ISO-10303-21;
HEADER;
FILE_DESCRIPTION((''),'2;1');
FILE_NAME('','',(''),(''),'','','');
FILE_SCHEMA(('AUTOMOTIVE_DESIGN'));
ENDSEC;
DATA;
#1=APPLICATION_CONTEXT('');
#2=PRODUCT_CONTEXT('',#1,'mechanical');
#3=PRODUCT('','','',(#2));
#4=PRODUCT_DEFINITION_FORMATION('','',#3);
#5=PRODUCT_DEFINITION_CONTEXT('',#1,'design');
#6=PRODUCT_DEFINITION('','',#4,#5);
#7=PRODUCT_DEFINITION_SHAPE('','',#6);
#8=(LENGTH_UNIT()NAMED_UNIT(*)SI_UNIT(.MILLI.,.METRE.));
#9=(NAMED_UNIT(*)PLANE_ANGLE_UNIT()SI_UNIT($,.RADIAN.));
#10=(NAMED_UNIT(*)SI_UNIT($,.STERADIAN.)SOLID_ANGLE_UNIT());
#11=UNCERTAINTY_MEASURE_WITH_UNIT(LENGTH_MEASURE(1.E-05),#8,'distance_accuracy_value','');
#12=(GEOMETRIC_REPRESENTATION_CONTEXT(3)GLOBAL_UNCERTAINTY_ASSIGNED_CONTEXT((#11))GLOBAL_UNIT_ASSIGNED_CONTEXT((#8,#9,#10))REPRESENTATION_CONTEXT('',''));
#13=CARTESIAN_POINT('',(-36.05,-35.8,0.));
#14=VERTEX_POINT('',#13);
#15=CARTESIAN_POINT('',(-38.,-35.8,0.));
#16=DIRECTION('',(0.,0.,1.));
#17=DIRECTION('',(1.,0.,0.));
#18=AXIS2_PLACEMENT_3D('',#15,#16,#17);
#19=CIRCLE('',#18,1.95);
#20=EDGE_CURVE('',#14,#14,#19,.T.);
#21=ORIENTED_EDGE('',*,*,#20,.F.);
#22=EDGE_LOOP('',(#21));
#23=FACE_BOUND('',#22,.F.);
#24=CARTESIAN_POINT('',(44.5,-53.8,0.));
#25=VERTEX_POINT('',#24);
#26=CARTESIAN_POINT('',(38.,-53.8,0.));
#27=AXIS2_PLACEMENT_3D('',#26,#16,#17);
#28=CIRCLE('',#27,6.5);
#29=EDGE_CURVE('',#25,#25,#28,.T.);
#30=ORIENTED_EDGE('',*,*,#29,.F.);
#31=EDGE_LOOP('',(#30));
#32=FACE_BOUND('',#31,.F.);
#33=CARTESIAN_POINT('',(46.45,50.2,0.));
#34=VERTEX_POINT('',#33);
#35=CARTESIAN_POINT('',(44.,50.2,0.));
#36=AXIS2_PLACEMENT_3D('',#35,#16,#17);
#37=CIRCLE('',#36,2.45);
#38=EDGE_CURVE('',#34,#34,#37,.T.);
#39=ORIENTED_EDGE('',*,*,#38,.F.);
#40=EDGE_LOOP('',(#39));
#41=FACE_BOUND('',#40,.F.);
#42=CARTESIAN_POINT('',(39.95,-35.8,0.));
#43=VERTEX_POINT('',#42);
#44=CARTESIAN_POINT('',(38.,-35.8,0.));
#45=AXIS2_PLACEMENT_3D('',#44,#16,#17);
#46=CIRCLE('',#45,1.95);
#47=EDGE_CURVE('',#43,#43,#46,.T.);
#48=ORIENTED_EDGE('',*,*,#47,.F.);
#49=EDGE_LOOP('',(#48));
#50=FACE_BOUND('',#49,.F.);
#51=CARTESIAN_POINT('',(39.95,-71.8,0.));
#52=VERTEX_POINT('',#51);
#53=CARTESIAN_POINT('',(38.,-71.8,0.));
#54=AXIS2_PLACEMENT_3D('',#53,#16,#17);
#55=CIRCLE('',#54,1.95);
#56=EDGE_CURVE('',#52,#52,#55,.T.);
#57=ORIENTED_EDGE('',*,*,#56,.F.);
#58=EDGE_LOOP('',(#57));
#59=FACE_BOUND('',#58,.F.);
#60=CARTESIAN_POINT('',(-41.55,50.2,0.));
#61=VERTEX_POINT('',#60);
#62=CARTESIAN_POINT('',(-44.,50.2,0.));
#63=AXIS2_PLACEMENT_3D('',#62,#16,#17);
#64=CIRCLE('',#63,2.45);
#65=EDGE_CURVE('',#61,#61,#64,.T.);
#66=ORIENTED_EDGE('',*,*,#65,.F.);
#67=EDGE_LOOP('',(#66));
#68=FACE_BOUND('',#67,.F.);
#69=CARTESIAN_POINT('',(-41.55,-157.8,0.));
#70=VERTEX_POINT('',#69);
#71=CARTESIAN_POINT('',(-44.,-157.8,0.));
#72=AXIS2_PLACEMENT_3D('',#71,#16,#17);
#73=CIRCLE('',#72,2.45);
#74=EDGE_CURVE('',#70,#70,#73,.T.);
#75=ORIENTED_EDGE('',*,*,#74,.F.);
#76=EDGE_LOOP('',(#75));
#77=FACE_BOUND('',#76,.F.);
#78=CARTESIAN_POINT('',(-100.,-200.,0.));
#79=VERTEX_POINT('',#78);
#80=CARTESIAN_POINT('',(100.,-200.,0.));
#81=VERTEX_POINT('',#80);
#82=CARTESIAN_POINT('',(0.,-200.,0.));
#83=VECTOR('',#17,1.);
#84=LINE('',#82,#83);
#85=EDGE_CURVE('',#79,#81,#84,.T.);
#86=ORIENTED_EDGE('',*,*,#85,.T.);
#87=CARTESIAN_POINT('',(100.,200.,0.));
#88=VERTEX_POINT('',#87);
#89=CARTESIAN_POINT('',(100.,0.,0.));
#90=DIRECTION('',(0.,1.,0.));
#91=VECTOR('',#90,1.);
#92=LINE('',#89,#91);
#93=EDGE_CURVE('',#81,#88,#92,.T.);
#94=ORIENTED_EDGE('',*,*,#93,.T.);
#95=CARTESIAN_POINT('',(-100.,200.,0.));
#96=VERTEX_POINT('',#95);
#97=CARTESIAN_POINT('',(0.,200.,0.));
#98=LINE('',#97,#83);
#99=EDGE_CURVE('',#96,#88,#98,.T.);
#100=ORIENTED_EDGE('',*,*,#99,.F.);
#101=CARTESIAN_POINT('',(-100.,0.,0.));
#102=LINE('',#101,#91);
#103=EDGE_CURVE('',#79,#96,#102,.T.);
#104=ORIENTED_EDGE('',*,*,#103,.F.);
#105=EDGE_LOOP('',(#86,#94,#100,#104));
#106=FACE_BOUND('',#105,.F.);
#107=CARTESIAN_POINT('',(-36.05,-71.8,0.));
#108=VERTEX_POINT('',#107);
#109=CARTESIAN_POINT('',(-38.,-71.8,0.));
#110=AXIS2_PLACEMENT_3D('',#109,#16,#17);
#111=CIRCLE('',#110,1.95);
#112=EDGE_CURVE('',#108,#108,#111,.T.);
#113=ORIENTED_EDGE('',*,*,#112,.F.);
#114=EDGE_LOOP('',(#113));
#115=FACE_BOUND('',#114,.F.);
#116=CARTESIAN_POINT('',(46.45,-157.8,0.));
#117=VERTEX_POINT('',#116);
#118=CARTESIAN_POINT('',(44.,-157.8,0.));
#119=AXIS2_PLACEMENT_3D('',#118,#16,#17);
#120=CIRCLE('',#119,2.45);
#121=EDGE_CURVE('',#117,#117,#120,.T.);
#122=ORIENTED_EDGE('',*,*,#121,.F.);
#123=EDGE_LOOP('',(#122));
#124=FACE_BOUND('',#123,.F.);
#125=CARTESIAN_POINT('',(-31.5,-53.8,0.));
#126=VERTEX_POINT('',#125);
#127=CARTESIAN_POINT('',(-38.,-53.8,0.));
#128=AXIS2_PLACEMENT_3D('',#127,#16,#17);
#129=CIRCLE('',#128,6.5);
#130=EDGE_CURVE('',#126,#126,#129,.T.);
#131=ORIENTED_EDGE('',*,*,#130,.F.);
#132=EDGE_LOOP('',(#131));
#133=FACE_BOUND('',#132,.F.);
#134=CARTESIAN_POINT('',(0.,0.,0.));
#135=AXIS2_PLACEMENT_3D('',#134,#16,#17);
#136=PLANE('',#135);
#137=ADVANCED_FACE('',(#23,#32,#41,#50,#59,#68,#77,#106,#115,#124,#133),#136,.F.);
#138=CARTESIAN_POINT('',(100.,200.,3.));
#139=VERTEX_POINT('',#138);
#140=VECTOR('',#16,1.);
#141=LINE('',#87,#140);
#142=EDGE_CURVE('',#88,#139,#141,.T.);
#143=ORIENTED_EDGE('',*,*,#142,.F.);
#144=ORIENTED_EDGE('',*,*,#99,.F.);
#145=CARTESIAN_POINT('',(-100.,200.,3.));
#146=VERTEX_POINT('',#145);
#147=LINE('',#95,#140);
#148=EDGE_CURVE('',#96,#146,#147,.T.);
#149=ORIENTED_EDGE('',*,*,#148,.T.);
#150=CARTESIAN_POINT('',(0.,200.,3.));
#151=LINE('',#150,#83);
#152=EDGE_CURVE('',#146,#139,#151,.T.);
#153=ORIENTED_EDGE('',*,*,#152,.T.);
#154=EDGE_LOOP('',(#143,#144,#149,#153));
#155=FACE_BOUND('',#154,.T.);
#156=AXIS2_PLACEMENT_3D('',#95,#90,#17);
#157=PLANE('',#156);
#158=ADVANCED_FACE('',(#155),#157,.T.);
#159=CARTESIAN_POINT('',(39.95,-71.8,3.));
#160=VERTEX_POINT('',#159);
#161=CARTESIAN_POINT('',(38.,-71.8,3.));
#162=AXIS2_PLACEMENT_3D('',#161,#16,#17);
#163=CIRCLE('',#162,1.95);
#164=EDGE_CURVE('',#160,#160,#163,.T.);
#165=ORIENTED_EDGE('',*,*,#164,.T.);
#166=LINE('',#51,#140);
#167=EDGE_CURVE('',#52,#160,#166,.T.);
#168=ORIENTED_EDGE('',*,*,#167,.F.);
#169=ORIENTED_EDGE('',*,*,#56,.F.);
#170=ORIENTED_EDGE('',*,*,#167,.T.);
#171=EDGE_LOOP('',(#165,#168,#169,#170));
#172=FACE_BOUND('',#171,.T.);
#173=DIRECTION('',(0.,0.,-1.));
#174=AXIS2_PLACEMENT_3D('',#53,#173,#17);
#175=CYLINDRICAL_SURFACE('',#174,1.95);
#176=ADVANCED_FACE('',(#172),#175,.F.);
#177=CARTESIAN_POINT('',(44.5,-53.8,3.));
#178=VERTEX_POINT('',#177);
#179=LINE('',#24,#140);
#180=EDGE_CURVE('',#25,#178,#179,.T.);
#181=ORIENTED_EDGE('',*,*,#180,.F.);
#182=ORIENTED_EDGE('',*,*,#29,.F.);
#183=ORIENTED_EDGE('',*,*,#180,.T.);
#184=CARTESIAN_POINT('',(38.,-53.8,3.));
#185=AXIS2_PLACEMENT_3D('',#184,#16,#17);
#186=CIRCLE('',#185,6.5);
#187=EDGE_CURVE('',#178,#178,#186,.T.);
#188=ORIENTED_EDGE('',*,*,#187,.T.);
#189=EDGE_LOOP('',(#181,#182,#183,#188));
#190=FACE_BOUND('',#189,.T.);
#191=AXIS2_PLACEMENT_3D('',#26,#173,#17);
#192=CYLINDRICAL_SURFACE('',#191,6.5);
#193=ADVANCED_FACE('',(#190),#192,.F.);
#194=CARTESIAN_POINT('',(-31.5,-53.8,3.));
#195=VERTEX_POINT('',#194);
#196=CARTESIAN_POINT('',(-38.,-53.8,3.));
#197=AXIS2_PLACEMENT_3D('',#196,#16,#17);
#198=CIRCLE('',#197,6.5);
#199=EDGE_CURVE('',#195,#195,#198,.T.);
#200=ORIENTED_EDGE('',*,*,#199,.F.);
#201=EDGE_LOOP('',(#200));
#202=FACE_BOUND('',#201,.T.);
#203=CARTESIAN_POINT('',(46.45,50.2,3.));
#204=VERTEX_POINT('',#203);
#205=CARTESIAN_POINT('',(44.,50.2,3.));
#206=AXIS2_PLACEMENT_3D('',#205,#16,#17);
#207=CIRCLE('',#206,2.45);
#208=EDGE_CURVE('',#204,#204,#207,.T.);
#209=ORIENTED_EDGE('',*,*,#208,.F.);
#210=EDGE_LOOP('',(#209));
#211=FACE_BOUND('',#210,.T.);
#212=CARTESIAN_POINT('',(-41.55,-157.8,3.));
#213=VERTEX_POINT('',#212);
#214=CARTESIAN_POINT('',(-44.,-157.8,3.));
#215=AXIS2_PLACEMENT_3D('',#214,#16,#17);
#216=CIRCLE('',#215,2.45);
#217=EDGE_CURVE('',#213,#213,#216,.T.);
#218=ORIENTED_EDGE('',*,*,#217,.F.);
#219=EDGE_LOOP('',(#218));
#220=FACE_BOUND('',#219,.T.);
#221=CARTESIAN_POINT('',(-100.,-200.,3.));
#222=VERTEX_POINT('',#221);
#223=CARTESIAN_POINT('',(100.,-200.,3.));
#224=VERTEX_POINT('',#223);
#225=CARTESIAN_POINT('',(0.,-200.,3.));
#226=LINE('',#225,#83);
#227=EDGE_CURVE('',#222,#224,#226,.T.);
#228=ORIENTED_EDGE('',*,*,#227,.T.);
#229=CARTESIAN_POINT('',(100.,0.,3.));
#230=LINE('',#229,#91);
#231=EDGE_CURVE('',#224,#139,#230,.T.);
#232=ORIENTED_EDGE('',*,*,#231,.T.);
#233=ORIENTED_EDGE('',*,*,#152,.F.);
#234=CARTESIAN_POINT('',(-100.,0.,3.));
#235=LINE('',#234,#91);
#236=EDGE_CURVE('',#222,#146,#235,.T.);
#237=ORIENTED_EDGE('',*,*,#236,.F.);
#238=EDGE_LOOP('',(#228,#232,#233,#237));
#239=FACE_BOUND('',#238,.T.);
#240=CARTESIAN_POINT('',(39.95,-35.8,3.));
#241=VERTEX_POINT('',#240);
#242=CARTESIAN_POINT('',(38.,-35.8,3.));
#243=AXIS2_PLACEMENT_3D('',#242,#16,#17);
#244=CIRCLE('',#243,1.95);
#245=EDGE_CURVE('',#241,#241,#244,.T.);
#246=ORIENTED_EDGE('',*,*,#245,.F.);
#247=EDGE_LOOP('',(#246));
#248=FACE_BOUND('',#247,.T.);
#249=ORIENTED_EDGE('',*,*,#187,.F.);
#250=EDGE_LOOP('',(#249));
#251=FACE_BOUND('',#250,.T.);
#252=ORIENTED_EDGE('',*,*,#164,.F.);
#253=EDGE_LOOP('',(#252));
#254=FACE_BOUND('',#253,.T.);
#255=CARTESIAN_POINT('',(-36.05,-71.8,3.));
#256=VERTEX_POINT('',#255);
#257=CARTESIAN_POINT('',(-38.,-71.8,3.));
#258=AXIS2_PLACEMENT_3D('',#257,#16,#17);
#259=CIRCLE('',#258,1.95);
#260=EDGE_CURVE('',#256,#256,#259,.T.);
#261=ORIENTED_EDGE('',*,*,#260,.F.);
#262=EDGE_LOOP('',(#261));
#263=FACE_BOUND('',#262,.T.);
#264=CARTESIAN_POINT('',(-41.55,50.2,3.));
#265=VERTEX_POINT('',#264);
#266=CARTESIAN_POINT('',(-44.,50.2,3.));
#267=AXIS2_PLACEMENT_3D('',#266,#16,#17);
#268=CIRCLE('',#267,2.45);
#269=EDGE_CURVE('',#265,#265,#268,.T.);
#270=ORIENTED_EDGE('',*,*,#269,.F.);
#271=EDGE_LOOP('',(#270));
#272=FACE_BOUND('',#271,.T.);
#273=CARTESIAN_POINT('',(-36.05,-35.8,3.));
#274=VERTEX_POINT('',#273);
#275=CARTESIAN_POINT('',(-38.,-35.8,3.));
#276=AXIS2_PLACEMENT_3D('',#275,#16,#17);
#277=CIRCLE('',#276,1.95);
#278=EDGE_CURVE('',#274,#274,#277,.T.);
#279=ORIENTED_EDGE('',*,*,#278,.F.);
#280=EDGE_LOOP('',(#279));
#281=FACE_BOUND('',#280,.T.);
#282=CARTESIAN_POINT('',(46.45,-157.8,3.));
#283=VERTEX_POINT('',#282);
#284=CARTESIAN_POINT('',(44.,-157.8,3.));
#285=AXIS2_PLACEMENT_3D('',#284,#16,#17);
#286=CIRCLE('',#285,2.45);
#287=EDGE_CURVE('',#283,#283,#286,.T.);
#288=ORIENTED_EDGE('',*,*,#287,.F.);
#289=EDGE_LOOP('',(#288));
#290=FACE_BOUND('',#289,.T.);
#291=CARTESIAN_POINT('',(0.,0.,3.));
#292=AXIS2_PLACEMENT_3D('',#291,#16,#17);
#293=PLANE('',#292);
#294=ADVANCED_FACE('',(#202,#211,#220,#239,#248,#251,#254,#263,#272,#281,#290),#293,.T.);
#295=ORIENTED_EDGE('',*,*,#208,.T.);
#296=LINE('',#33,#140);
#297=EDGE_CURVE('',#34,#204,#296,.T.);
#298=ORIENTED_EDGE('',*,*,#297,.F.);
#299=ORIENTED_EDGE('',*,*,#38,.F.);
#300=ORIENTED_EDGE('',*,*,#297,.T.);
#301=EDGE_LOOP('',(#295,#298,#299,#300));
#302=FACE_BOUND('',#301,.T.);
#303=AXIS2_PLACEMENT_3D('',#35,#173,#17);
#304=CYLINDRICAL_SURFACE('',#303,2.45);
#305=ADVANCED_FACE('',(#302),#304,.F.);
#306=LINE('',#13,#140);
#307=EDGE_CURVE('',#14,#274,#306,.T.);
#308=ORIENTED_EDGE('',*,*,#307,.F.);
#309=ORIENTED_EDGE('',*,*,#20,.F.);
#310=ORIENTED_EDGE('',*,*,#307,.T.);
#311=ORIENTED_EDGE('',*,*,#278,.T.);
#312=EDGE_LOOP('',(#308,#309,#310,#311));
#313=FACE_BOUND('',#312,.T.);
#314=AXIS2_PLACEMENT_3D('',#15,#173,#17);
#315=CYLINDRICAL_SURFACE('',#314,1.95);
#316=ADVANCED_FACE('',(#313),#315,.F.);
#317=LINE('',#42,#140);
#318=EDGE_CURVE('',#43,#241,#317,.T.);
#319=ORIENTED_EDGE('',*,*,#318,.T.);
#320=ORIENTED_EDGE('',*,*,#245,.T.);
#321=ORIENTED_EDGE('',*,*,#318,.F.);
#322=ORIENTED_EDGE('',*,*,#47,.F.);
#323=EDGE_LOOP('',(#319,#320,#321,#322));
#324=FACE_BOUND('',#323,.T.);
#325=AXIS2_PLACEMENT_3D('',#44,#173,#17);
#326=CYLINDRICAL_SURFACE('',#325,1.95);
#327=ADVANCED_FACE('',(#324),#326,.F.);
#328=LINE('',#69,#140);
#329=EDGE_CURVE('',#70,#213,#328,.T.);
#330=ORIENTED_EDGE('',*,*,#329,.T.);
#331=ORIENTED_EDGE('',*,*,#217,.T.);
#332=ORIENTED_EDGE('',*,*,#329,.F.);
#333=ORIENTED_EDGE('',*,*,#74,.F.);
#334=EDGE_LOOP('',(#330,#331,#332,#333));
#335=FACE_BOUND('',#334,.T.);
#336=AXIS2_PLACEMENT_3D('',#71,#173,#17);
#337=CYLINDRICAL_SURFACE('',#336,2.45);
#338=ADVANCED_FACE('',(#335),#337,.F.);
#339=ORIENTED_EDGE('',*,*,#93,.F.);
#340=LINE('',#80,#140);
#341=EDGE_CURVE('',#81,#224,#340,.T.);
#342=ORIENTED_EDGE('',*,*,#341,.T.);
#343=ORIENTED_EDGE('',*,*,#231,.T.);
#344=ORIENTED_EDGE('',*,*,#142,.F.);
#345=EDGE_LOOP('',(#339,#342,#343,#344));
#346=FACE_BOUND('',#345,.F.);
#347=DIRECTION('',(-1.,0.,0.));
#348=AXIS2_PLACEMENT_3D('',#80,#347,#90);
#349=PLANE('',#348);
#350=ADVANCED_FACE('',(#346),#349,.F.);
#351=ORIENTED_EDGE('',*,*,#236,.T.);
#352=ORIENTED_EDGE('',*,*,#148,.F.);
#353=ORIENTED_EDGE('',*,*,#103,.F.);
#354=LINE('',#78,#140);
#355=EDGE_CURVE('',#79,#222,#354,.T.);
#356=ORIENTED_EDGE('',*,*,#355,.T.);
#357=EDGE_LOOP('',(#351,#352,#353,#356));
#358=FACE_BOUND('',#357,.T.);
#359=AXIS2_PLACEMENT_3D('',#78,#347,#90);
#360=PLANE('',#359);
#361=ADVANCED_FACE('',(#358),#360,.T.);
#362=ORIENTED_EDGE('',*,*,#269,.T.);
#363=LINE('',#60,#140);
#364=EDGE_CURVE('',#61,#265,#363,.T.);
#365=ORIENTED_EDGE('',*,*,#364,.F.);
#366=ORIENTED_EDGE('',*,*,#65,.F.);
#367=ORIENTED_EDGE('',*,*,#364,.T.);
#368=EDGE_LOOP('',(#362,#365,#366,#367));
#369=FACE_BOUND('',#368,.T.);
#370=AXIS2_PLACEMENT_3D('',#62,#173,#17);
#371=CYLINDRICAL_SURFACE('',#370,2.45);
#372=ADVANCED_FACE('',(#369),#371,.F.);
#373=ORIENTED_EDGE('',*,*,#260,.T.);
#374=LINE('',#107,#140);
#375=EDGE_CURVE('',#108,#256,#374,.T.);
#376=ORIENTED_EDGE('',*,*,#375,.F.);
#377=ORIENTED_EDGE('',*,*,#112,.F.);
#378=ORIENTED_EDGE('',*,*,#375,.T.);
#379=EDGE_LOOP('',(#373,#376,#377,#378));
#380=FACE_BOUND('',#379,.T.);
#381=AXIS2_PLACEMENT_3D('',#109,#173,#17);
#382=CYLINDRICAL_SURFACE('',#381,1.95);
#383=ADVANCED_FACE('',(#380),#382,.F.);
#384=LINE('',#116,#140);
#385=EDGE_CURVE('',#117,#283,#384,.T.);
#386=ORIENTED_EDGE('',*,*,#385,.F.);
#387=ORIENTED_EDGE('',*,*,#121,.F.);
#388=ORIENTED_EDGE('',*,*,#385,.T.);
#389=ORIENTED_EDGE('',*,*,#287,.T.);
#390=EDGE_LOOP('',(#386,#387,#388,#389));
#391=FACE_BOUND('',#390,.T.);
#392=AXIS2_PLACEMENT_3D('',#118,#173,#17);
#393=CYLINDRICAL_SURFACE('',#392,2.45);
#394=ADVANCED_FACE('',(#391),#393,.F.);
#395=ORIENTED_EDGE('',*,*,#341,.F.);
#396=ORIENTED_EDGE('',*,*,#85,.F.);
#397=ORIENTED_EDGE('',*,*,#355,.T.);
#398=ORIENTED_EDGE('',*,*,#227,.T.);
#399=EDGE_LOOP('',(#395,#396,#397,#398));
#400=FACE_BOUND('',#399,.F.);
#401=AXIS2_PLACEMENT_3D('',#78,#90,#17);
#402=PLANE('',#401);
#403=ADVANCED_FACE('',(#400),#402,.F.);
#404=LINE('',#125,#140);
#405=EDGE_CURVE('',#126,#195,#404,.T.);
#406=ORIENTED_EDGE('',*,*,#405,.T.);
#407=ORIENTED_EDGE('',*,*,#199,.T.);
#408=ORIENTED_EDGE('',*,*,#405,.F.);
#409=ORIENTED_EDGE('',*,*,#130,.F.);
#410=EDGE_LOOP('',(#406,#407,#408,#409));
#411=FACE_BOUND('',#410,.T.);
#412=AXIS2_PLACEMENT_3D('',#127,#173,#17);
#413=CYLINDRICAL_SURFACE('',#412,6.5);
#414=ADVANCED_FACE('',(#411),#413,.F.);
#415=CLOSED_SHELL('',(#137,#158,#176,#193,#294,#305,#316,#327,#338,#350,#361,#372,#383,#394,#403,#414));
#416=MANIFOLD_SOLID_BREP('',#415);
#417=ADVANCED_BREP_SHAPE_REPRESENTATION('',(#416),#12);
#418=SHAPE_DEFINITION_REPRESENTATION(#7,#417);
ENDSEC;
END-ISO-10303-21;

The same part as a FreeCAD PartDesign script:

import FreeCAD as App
import Part
import Sketcher
from FreeCAD import Vector


def add_polygon(sketch, points):
    """Adds a closed chain of lines whose ends are joined by coincident constraints."""
    first, n = sketch.GeometryCount, len(points)
    for a, b in zip(points, points[1:] + points[:1]):
        sketch.addGeometry(Part.LineSegment(App.Vector(*a, 0), App.Vector(*b, 0)), False)
    for i in range(n):
        sketch.addConstraint(Sketcher.Constraint("Coincident", first + i, 2, first + (i + 1) % n, 1))

doc = App.newDocument("Part")
body = doc.addObject("PartDesign::Body", "Body")

# Sketch on XY plane
sketch1 = body.newObject("Sketcher::SketchObject", "Sketch")
sketch1.AttachmentSupport = (doc.getObject("XY_Plane"), [""])
sketch1.MapMode = "FlatFace"
add_polygon(sketch1, [(-100, 200), (-100, -200), (100, -200), (100, 200)])  # lines 0-3
sketch1.addGeometry(Part.Circle(Vector(-44, -157.8, 0), Vector(0, 0, 1), 2.5), False)  # 4
sketch1.addGeometry(Part.Circle(Vector(-38, -71.8, 0), Vector(0, 0, 1), 1.9), False)  # 5
sketch1.addGeometry(Part.Circle(Vector(44, -157.8, 0), Vector(0, 0, 1), 2.5), False)  # 6
sketch1.addGeometry(Part.Circle(Vector(38, -71.8, 0), Vector(0, 0, 1), 1.9), False)  # 7
sketch1.addGeometry(Part.Circle(Vector(-38, -53.8, 0), Vector(0, 0, 1), 6.5), False)  # 8
sketch1.addGeometry(Part.Circle(Vector(-38, -35.8, 0), Vector(0, 0, 1), 1.9), False)  # 9
sketch1.addGeometry(Part.Circle(Vector(-44, 50.2, 0), Vector(0, 0, 1), 2.5), False)  # 10
sketch1.addGeometry(Part.Circle(Vector(38, -53.8, 0), Vector(0, 0, 1), 6.5), False)  # 11
sketch1.addGeometry(Part.Circle(Vector(38, -35.8, 0), Vector(0, 0, 1), 1.9), False)  # 12
sketch1.addGeometry(Part.Circle(Vector(44, 50.2, 0), Vector(0, 0, 1), 2.5), False)  # 13
sketch1.addConstraint(Sketcher.Constraint("Vertical", 0))
sketch1.addConstraint(Sketcher.Constraint("Horizontal", 1))
sketch1.addConstraint(Sketcher.Constraint("Vertical", 2))
sketch1.addConstraint(Sketcher.Constraint("Horizontal", 3))
sketch1.addConstraint(Sketcher.Constraint("Equal", 4, 6))
sketch1.addConstraint(Sketcher.Constraint("Equal", 5, 7))
sketch1.addConstraint(Sketcher.Constraint("Equal", 7, 9))
sketch1.addConstraint(Sketcher.Constraint("Equal", 6, 10))
sketch1.addConstraint(Sketcher.Constraint("Equal", 8, 11))
sketch1.addConstraint(Sketcher.Constraint("Equal", 9, 12))
sketch1.addConstraint(Sketcher.Constraint("Equal", 10, 13))
sketch1.addConstraint(Sketcher.Constraint("Symmetric", 0, 2, 2, 2, -1, 1))
sketch1.addConstraint(Sketcher.Constraint("Symmetric", 4, 3, 6, 3, -2))
sketch1.addConstraint(Sketcher.Constraint("Symmetric", 5, 3, 7, 3, -2))
sketch1.addConstraint(Sketcher.Constraint("Symmetric", 8, 3, 11, 3, -2))
sketch1.addConstraint(Sketcher.Constraint("Symmetric", 9, 3, 12, 3, -2))
sketch1.addConstraint(Sketcher.Constraint("Symmetric", 10, 3, 13, 3, -2))
sketch1.addConstraint(Sketcher.Constraint("Vertical", 5, 3, 8, 3))
sketch1.addConstraint(Sketcher.Constraint("Vertical", 8, 3, 9, 3))
sketch1.addConstraint(Sketcher.Constraint("Vertical", 4, 3, 10, 3))
sketch1.addConstraint(Sketcher.Constraint("Diameter", 8, 13.0))
sketch1.addConstraint(Sketcher.Constraint("Diameter", 4, 4.9))
sketch1.addConstraint(Sketcher.Constraint("Diameter", 5, 3.9))
sketch1.addConstraint(Sketcher.Constraint("DistanceX", 1, 1, 1, 2, 200.0))
sketch1.addConstraint(Sketcher.Constraint("DistanceY", 0, 2, 0, 1, 400.0))
sketch1.addConstraint(Sketcher.Constraint("DistanceX", 4, 3, -1, 1, 44.0))
sketch1.addConstraint(Sketcher.Constraint("DistanceX", 5, 3, -1, 1, 38.0))
sketch1.addConstraint(Sketcher.Constraint("DistanceY", 4, 3, 5, 3, 86.0))
sketch1.addConstraint(Sketcher.Constraint("DistanceY", 5, 3, 8, 3, 18.0))
sketch1.addConstraint(Sketcher.Constraint("DistanceY", 8, 3, 9, 3, 18.0))
sketch1.addConstraint(Sketcher.Constraint("DistanceY", 9, 3, 10, 3, 86.0))
sketch1.addConstraint(Sketcher.Constraint("DistanceY", 4, 3, -1, 1, 157.8))
pad1 = body.newObject("PartDesign::Pad", "Pad")
pad1.Profile = sketch1
pad1.Length = 3

doc.recompute()
